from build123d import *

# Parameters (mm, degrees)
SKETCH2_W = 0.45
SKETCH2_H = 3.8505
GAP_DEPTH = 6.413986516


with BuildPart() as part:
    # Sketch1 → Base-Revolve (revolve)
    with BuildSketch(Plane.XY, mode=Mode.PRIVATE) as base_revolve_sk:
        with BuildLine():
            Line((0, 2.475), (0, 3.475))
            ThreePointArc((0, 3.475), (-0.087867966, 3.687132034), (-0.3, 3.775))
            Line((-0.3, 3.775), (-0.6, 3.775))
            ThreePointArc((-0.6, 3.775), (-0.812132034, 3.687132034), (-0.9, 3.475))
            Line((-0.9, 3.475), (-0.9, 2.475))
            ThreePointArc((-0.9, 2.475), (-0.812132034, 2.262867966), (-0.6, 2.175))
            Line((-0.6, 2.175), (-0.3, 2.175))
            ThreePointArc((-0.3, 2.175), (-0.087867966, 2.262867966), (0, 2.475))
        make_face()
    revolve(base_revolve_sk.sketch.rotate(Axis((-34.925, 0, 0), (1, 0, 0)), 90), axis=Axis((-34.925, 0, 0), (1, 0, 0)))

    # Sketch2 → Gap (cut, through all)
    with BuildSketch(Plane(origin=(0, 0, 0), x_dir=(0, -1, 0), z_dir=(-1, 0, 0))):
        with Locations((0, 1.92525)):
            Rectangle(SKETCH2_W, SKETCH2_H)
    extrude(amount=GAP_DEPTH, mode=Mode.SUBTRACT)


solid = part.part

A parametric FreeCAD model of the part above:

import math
import FreeCAD as App
import Part
import Sketcher
from FreeCAD import Vector
Q = App.Units.Quantity

doc = App.newDocument("Part")
body = doc.addObject("PartDesign::Body", "Body")

sketch1 = doc.addObject("Sketcher::SketchObject", "Sketch")
body.addObject(sketch1)
sketch1.AttachmentSupport = (doc.XY_Plane, [""])
sketch1.MapMode = "FlatFace"
sketch1.addGeometry([
    Part.LineSegment(Vector(0, 2.48, 0), Vector(0, 3.48, 0)),
    Part.ArcOfCircle(Part.Circle(Vector(-0.3, 3.47, 0), Vector(0, 0, 1), 0.3), math.radians(0), math.radians(90)),
    Part.LineSegment(Vector(-0.3, 3.77, 0), Vector(-0.6, 3.77, 0)),
    Part.ArcOfCircle(Part.Circle(Vector(-0.6, 3.47, 0), Vector(0, 0, 1), 0.3), math.radians(90), math.radians(180)),
    Part.LineSegment(Vector(-0.9, 3.48, 0), Vector(-0.9, 2.48, 0)),
    Part.ArcOfCircle(Part.Circle(Vector(-0.6, 2.48, 0), Vector(0, 0, 1), 0.3), math.radians(-180), math.radians(-90)),
    Part.LineSegment(Vector(-0.6, 2.17, 0), Vector(-0.3, 2.17, 0)),
    Part.ArcOfCircle(Part.Circle(Vector(-0.3, 2.48, 0), Vector(0, 0, 1), 0.3), math.radians(-90), math.radians(0)),
], False)
sketch1.addConstraint([
    Sketcher.Constraint("Tangent", 0, 2, 1, 1),
    Sketcher.Constraint("Tangent", 1, 2, 2, 1),
    Sketcher.Constraint("Tangent", 2, 2, 3, 1),
    Sketcher.Constraint("Tangent", 3, 2, 4, 1),
    Sketcher.Constraint("Tangent", 4, 2, 5, 1),
    Sketcher.Constraint("Tangent", 5, 2, 6, 1),
    Sketcher.Constraint("Tangent", 6, 2, 7, 1),
    Sketcher.Constraint("Tangent", 7, 2, 0, 1),
    Sketcher.Constraint("Vertical", 0),
    Sketcher.Constraint("Horizontal", 2),
    Sketcher.Constraint("Vertical", 4),
    Sketcher.Constraint("Horizontal", 6),
    Sketcher.Constraint("Equal", 1, 3),
    Sketcher.Constraint("Equal", 3, 5),
    Sketcher.Constraint("Equal", 5, 7),
    Sketcher.Constraint("PointOnObject", 0, 2, -2),
    Sketcher.Constraint("Radius", 1, Q("0.3 mm")),
    Sketcher.Constraint("DistanceY", 0, 1, 0, 2, Q("1 mm")),
    Sketcher.Constraint("DistanceX", 2, 2, 2, 1, Q("0.3 mm")),
    Sketcher.Constraint("DistanceY", -1, 1, 1, 3, Q("3.475 mm")),
])
revolution = doc.addObject("PartDesign::Revolution", "Revolution")
body.addObject(revolution)
revolution.Profile = sketch1
revolution.ReferenceAxis = (sketch1, ["H_Axis"])
revolution.Angle = 360

sketch2 = doc.addObject("Sketcher::SketchObject", "Sketch001")
body.addObject(sketch2)
sketch2.AttachmentSupport = (doc.YZ_Plane, [""])
sketch2.MapMode = "FlatFace"
sketch2.addGeometry([
    Part.LineSegment(Vector(0.23, 3.85, 0), Vector(0.23, 0, 0)),
    Part.LineSegment(Vector(0.23, 0, 0), Vector(-0.23, 0, 0)),
    Part.LineSegment(Vector(-0.23, 0, 0), Vector(-0.23, 3.85, 0)),
    Part.LineSegment(Vector(-0.23, 3.85, 0), Vector(0.23, 3.85, 0)),
], False)
sketch2.addConstraint([
    Sketcher.Constraint("Coincident", 0, 2, 1, 1),
    Sketcher.Constraint("Coincident", 1, 2, 2, 1),
    Sketcher.Constraint("Coincident", 2, 2, 3, 1),
    Sketcher.Constraint("Coincident", 3, 2, 0, 1),
    Sketcher.Constraint("Vertical", 0),
    Sketcher.Constraint("Horizontal", 1),
    Sketcher.Constraint("Vertical", 2),
    Sketcher.Constraint("Horizontal", 3),
    Sketcher.Constraint("Symmetric", 0, 2, 1, 2, -1, 1),
    Sketcher.Constraint("DistanceX", 1, 2, 1, 1, Q("0.45 mm")),
    Sketcher.Constraint("DistanceY", 0, 2, 0, 1, Q("3.8505 mm")),
])
pocket1 = doc.addObject("PartDesign::Pocket", "Pocket")
body.addObject(pocket1)
pocket1.Profile = sketch2
pocket1.Type = "ThroughAll"

doc.recompute()
